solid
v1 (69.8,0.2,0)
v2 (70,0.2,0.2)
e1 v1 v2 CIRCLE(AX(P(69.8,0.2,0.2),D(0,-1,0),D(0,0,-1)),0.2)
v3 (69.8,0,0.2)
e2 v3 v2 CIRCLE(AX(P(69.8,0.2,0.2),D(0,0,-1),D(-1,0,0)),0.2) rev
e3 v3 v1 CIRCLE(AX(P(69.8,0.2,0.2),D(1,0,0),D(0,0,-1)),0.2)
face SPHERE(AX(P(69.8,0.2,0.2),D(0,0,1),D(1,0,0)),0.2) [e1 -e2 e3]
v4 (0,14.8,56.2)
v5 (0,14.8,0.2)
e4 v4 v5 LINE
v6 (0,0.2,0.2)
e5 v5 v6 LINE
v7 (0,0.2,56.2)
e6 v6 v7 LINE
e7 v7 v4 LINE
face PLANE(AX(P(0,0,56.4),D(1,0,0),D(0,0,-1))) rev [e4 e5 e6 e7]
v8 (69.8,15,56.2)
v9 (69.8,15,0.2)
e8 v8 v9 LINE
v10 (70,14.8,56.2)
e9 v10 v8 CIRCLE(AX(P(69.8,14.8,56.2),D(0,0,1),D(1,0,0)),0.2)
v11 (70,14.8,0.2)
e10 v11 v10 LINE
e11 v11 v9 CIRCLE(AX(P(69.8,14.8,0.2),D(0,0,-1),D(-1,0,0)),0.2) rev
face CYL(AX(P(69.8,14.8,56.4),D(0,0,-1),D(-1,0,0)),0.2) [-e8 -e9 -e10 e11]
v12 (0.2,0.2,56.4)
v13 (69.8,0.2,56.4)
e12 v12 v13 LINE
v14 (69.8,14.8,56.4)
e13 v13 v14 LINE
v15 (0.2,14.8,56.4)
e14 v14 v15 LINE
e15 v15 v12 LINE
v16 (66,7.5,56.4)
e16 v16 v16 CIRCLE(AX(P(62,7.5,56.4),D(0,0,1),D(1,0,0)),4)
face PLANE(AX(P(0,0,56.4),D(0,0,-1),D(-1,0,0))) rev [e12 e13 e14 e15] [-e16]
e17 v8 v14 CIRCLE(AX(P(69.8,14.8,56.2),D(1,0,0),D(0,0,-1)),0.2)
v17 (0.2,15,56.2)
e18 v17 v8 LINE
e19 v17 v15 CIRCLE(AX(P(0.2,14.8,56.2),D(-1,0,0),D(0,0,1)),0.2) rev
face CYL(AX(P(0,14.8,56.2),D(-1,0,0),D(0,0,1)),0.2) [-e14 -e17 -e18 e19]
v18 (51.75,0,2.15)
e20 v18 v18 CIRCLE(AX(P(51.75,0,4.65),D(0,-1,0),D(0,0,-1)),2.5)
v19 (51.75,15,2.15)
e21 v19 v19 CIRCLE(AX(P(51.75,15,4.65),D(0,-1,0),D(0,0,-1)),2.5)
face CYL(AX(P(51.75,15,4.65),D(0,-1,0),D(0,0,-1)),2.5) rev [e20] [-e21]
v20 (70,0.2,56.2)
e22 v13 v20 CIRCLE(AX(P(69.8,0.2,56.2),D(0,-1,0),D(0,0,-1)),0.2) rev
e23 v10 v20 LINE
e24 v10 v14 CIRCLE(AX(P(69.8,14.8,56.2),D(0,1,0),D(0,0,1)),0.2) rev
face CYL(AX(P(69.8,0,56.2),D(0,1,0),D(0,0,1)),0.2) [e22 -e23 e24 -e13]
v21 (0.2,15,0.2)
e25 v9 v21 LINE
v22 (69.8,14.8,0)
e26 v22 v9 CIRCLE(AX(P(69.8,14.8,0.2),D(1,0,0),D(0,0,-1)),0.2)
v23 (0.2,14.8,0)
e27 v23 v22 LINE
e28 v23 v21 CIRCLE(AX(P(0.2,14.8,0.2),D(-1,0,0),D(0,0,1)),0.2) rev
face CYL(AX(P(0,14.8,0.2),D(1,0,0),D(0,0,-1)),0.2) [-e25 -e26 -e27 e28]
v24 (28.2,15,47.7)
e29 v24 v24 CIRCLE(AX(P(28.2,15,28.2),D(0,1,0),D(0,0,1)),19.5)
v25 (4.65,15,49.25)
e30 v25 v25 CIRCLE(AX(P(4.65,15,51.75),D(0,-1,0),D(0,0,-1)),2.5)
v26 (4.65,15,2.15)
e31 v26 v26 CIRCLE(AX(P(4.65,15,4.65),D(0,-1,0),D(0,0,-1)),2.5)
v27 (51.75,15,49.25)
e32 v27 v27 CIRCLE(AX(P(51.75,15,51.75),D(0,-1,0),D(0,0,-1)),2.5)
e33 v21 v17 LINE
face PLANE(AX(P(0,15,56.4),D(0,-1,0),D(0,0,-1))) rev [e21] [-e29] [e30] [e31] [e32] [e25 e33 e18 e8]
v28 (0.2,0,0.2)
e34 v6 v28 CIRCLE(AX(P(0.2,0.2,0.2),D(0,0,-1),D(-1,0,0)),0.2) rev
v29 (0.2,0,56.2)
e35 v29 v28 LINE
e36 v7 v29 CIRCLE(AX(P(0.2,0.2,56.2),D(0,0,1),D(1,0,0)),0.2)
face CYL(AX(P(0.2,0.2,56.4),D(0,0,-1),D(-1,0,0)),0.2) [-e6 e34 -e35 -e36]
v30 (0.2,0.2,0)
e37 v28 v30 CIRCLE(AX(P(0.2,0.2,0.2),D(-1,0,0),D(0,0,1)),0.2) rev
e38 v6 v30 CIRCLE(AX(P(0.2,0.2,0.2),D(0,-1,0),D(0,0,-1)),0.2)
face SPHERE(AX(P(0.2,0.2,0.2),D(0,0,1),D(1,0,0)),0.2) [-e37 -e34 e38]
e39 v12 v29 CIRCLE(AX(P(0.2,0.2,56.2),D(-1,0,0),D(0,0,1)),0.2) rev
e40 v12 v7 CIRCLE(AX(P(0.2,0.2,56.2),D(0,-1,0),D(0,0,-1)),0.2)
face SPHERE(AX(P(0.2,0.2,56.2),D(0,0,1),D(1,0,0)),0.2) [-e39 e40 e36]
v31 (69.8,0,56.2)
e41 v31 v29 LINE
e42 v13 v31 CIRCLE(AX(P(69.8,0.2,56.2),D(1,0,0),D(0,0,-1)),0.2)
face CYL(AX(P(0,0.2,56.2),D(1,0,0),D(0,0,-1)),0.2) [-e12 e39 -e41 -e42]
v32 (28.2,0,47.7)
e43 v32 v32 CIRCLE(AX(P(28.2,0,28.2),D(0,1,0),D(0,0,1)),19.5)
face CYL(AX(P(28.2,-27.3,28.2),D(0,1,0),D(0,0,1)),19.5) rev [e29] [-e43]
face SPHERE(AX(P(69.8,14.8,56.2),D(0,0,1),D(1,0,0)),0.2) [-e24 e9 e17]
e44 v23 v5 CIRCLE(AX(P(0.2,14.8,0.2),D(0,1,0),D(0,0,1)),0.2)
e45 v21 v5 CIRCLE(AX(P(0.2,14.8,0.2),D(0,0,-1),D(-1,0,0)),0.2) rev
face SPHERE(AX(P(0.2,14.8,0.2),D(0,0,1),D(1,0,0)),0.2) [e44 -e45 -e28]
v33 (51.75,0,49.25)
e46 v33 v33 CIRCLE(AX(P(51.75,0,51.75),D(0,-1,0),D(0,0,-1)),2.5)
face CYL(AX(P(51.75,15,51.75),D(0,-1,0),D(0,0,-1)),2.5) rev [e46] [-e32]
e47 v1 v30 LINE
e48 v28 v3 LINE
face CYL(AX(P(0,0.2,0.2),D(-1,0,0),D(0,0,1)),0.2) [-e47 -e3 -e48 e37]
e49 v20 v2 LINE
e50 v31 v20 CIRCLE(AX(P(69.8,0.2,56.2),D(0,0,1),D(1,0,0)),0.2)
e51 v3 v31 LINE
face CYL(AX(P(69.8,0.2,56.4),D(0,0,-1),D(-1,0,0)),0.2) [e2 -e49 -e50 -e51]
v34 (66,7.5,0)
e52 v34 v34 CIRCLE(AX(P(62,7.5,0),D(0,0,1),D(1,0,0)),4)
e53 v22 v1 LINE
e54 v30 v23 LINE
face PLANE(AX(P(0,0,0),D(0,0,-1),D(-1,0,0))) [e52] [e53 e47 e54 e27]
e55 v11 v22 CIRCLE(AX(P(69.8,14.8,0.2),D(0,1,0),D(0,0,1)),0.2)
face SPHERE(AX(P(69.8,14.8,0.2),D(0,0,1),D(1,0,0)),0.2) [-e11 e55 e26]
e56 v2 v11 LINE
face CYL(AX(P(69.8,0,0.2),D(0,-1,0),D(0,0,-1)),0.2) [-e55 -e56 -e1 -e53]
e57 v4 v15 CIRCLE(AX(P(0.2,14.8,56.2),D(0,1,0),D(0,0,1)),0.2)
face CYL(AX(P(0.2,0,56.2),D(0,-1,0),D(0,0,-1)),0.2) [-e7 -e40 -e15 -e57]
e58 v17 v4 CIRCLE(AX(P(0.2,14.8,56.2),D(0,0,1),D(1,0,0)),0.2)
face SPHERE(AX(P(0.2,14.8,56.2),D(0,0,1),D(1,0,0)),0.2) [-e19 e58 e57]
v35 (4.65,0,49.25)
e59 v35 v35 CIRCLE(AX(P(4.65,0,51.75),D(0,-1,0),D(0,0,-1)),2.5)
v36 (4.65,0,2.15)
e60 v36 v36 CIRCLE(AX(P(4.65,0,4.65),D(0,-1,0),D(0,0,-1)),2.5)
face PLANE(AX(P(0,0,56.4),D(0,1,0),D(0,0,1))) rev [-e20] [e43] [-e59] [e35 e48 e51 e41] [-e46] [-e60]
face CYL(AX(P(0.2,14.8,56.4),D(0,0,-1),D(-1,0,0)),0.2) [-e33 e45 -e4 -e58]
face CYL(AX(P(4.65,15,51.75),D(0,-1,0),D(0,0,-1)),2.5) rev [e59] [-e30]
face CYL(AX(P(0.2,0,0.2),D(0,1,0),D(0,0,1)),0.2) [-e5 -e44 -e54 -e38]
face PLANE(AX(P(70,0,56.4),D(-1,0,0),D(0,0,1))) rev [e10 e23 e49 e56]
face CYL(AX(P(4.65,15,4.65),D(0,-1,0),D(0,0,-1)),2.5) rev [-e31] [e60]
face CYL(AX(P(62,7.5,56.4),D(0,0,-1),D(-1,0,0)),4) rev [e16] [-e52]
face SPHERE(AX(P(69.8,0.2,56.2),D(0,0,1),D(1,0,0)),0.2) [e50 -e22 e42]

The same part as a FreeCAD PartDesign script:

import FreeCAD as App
import Part
import Sketcher


def edges_at(feature, points):
    """Names of the edges that pass closest to the given points."""
    edges = feature.Shape.Edges
    near = lambda p: min(range(len(edges)), key=lambda i: edges[i].distToShape(Part.Vertex(*p))[0])
    return sorted({f"Edge{near(p) + 1}" for p in points})


def add_polygon(sketch, points):
    """Adds a closed chain of lines whose ends are joined by coincident constraints."""
    first, n = sketch.GeometryCount, len(points)
    for a, b in zip(points, points[1:] + points[:1]):
        sketch.addGeometry(Part.LineSegment(App.Vector(*a, 0), App.Vector(*b, 0)), False)
    for i in range(n):
        sketch.addConstraint(Sketcher.Constraint("Coincident", first + i, 2, first + (i + 1) % n, 1))

doc = App.newDocument("Part")
body = doc.addObject("PartDesign::Body", "Body")

sketch1 = doc.addObject("Sketcher::SketchObject", "Sketch")
body.addObject(sketch1)
sketch1.AttachmentSupport = (doc.XY_Plane, [""])
sketch1.MapMode = "FlatFace"
add_polygon(sketch1, [(0, 15), (0, 0), (70, 0), (70, 15)])
sketch1.addGeometry(Part.Circle(App.Vector(62, 7.5, 0), App.Vector(0, 0, 1), 4), False)
sketch1.addConstraint(Sketcher.Constraint("Vertical", 0))
sketch1.addConstraint(Sketcher.Constraint("Horizontal", 1))
sketch1.addConstraint(Sketcher.Constraint("Vertical", 2))
sketch1.addConstraint(Sketcher.Constraint("Horizontal", 3))
sketch1.addConstraint(Sketcher.Constraint("Coincident", 0, 2, -1, 1))
sketch1.addConstraint(Sketcher.Constraint("Diameter", 4, 8.0))
sketch1.addConstraint(Sketcher.Constraint("DistanceX", 1, 1, 1, 2, 70.0))
sketch1.addConstraint(Sketcher.Constraint("DistanceY", 0, 2, 0, 1, 15.0))
sketch1.addConstraint(Sketcher.Constraint("DistanceX", -1, 1, 4, 3, 62.0))
sketch1.addConstraint(Sketcher.Constraint("DistanceY", -1, 1, 4, 3, 7.5))
pad1 = doc.addObject("PartDesign::Pad", "Pad")
body.addObject(pad1)
pad1.Profile = sketch1
pad1.Length = 56.4

sketch2 = doc.addObject("Sketcher::SketchObject", "Sketch001")
body.addObject(sketch2)
sketch2.AttachmentSupport = (doc.XZ_Plane, [""])
sketch2.MapMode = "FlatFace"
sketch2.AttachmentOffset = App.Placement(App.Vector(0, 0, -15), App.Rotation())
sketch2.addGeometry(Part.Circle(App.Vector(28.2, 28.2, 0), App.Vector(0, 0, 1), 19.5), False)
sketch2.addConstraint(Sketcher.Constraint("Diameter", 0, 39.0))
sketch2.addConstraint(Sketcher.Constraint("DistanceX", -1, 1, 0, 3, 28.2))
sketch2.addConstraint(Sketcher.Constraint("DistanceY", -1, 1, 0, 3, 28.2))
pocket1 = doc.addObject("PartDesign::Pocket", "Pocket")
body.addObject(pocket1)
pocket1.Profile = sketch2
pocket1.Length = 42.3
pocket1.Reversed = True

sketch3 = doc.addObject("Sketcher::SketchObject", "Sketch002")
body.addObject(sketch3)
sketch3.AttachmentSupport = (doc.XZ_Plane, [""])
sketch3.MapMode = "FlatFace"
sketch3.addGeometry(Part.Circle(App.Vector(51.75, 4.65, 0), App.Vector(0, 0, 1), 2.5), False)
sketch3.addGeometry(Part.Circle(App.Vector(4.65, 4.65, 0), App.Vector(0, 0, 1), 2.5), False)
sketch3.addGeometry(Part.Circle(App.Vector(4.65, 51.75, 0), App.Vector(0, 0, 1), 2.5), False)
sketch3.addGeometry(Part.Circle(App.Vector(51.75, 51.75, 0), App.Vector(0, 0, 1), 2.5), False)
sketch3.addConstraint(Sketcher.Constraint("Equal", 0, 1))
sketch3.addConstraint(Sketcher.Constraint("Equal", 1, 2))
sketch3.addConstraint(Sketcher.Constraint("Equal", 2, 3))
sketch3.addConstraint(Sketcher.Constraint("Horizontal", 0, 3, 1, 3))
sketch3.addConstraint(Sketcher.Constraint("Horizontal", 2, 3, 3, 3))
sketch3.addConstraint(Sketcher.Constraint("Vertical", 1, 3, 2, 3))
sketch3.addConstraint(Sketcher.Constraint("Vertical", 0, 3, 3, 3))
sketch3.addConstraint(Sketcher.Constraint("Diameter", 0, 5.0))
sketch3.addConstraint(Sketcher.Constraint("DistanceX", 1, 3, 0, 3, 47.1))
sketch3.addConstraint(Sketcher.Constraint("DistanceY", 1, 3, 2, 3, 47.1))
sketch3.addConstraint(Sketcher.Constraint("DistanceX", -1, 1, 0, 3, 51.75))
sketch3.addConstraint(Sketcher.Constraint("DistanceY", -1, 1, 0, 3, 4.65))
pocket2 = doc.addObject("PartDesign::Pocket", "Pocket001")
body.addObject(pocket2)
pocket2.Profile = sketch3
pocket2.Type = "ThroughAll"
doc.recompute()

fillet = doc.addObject("PartDesign::Fillet", "Fillet")
body.addObject(fillet)
fillet.Base = (pocket2, edges_at(pocket2, [
    (70, 7.5, 56.4),
    (35, 15, 56.4),
    (0, 7.5, 56.4),
    (35, 15, 0),
    (70, 7.5, 0),
    (35, 0, 0),
    (0, 7.5, 0),
    (35, 0, 56.4),
    (0, 15, 28.2),
    (70, 15, 28.2),
    (70, 0, 28.2),
    (0, 0, 28.2),
]))
fillet.Radius = 0.2

doc.recompute()
